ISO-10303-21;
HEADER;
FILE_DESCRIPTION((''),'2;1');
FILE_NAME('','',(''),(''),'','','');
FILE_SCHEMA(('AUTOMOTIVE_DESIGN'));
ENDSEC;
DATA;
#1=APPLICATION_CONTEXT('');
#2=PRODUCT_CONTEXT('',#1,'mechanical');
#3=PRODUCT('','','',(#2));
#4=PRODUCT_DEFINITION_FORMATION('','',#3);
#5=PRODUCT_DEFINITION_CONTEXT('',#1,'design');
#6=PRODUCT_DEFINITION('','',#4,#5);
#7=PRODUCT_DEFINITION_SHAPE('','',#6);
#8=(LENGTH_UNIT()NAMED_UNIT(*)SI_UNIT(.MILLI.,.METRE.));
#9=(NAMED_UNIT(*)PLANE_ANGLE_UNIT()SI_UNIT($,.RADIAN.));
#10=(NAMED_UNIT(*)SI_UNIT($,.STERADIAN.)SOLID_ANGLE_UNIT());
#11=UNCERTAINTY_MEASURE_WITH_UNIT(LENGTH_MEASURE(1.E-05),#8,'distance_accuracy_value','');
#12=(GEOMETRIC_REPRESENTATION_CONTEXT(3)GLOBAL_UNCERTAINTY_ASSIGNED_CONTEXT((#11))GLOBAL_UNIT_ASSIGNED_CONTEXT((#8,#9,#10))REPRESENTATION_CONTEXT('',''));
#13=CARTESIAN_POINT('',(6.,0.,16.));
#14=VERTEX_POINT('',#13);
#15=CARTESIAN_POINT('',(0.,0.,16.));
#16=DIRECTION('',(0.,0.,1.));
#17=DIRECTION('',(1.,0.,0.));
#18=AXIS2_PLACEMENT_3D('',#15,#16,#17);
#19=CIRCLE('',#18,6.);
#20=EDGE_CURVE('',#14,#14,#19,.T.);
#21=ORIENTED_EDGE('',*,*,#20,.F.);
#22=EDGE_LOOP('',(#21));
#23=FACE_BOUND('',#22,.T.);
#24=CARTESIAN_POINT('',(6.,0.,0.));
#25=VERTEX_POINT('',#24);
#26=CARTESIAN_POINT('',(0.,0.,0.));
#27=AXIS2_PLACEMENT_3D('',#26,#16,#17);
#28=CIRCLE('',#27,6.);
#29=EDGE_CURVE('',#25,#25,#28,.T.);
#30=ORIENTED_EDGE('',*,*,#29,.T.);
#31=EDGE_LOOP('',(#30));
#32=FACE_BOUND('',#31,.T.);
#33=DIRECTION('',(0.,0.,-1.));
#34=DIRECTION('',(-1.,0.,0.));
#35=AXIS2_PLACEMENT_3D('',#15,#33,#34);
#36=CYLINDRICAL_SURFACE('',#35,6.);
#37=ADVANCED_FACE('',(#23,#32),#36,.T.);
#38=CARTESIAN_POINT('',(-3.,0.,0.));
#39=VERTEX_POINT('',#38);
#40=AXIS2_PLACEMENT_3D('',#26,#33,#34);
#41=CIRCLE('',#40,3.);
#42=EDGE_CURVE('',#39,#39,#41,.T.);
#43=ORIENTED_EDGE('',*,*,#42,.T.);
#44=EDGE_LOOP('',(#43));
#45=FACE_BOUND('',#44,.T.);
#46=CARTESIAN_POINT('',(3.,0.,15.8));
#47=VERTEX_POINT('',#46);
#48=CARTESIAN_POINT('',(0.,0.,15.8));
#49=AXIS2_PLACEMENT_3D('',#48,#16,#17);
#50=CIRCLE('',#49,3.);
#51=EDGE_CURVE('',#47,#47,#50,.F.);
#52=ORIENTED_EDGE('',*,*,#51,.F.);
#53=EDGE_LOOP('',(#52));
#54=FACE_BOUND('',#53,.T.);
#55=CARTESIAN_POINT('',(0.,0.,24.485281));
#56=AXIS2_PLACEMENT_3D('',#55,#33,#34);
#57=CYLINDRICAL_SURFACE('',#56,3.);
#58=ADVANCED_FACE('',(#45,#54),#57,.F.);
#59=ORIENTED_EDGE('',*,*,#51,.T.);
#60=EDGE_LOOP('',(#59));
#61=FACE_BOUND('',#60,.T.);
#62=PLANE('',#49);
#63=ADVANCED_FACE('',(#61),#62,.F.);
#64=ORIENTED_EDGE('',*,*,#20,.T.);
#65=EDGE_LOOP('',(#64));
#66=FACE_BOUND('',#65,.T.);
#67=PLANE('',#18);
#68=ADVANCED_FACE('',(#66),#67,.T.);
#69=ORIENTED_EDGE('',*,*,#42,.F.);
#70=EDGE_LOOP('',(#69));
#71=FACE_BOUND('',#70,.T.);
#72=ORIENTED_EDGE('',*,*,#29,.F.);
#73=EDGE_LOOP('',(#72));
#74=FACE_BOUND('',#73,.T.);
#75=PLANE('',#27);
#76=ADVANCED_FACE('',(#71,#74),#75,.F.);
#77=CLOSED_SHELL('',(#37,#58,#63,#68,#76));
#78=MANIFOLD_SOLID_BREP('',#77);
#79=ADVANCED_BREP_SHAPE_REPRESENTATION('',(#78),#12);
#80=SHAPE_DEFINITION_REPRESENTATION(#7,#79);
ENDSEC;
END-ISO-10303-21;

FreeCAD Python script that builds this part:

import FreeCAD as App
import Part
import Sketcher

V = App.Vector

doc = App.newDocument("Part")
params = doc.addObject("Spreadsheet::Sheet", "Params")
for row, (alias, value) in enumerate([
    ("sketch1_diameter", "12 mm"),
    ("pad1_length", "16 mm"),
    ("sketch2_diameter", "6 mm"),
    ("pocket1_length", "15.8 mm"),
], start=1):
    params.set(f"A{row}", alias)
    params.set(f"B{row}", "=" + value)
    params.setAlias(f"B{row}", alias)

body = doc.addObject("PartDesign::Body", "Body")

# Sketch on XY plane
sketch1 = body.newObject("Sketcher::SketchObject", "Sketch")
sketch1.AttachmentSupport = (doc.getObject("XY_Plane"), [""])
sketch1.MapMode = "FlatFace"
sketch1.addGeometry(Part.Circle(V(0, 0, 0), V(0, 0, 1), 6), False)
sketch1.addConstraint([
    Sketcher.Constraint("Coincident", 0, 3, -1, 1),
    Sketcher.Constraint("Diameter", 0, 12.0),
])
sketch1.setExpression("Constraints[1]", "Params.sketch1_diameter")
pad1 = body.newObject("PartDesign::Pad", "Pad")
pad1.Profile = sketch1
pad1.setExpression("Length", "Params.pad1_length")

# Sketch on XY plane
sketch2 = body.newObject("Sketcher::SketchObject", "Sketch001")
sketch2.AttachmentSupport = (doc.getObject("XY_Plane"), [""])
sketch2.MapMode = "FlatFace"
sketch2.addGeometry(Part.Circle(V(0, 0, 0), V(0, 0, 1), 3), False)
sketch2.addConstraint([
    Sketcher.Constraint("Coincident", 0, 3, -1, 1),
    Sketcher.Constraint("Diameter", 0, 6.0),
])
sketch2.setExpression("Constraints[1]", "Params.sketch2_diameter")
pocket1 = body.newObject("PartDesign::Pocket", "Pocket")
pocket1.Profile = sketch2
pocket1.setExpression("Length", "Params.pocket1_length")
pocket1.Reversed = True

doc.recompute()
